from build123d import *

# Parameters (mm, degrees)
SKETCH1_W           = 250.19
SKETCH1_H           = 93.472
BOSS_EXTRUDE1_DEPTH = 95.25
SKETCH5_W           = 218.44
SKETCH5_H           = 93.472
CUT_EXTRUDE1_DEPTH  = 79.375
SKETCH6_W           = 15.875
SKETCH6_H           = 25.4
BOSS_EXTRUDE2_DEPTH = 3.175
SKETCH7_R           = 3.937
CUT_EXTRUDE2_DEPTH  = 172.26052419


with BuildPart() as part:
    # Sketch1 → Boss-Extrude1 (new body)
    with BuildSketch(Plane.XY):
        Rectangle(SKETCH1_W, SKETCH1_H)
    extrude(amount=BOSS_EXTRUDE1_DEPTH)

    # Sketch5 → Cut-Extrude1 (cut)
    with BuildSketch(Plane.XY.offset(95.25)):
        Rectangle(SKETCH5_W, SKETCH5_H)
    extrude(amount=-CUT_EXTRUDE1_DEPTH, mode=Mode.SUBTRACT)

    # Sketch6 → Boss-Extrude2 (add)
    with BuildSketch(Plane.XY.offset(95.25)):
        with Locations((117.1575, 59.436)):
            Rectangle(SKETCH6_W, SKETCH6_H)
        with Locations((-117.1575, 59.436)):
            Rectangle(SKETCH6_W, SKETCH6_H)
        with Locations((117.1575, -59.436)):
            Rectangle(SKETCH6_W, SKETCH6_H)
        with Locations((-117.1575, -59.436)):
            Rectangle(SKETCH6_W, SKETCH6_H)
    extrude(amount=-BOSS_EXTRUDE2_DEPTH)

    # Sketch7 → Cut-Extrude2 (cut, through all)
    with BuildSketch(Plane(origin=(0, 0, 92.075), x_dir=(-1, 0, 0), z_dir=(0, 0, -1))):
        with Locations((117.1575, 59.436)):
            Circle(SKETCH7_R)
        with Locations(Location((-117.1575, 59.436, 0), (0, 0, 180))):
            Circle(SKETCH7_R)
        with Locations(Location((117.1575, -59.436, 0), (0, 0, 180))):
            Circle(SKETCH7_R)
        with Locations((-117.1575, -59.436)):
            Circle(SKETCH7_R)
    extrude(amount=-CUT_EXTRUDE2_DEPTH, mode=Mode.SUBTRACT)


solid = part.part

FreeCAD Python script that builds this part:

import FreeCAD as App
import Part
import Sketcher

V = App.Vector
Q = App.Units.Quantity

doc = App.newDocument("Part")
body = doc.addObject("PartDesign::Body", "Body")

sketch1 = body.newObject("Sketcher::SketchObject", "Sketch")
sketch1.AttachmentSupport = (doc.getObject("XY_Plane"), [""])
sketch1.MapMode = "FlatFace"
sketch1.addGeometry(Part.LineSegment(V(-125, 47, 0), V(-125, -47, 0)), False)
sketch1.addGeometry(Part.LineSegment(V(-125, -47, 0), V(125, -47, 0)), False)
sketch1.addGeometry(Part.LineSegment(V(125, -47, 0), V(125, 47, 0)), False)
sketch1.addGeometry(Part.LineSegment(V(125, 47, 0), V(-125, 47, 0)), False)
sketch1.addConstraint(Sketcher.Constraint("Coincident", 0, 2, 1, 1))
sketch1.addConstraint(Sketcher.Constraint("Coincident", 1, 2, 2, 1))
sketch1.addConstraint(Sketcher.Constraint("Coincident", 2, 2, 3, 1))
sketch1.addConstraint(Sketcher.Constraint("Coincident", 3, 2, 0, 1))
sketch1.addConstraint(Sketcher.Constraint("Vertical", 0))
sketch1.addConstraint(Sketcher.Constraint("Horizontal", 1))
sketch1.addConstraint(Sketcher.Constraint("Vertical", 2))
sketch1.addConstraint(Sketcher.Constraint("Horizontal", 3))
sketch1.addConstraint(Sketcher.Constraint("Symmetric", 0, 2, 2, 2, -1, 1))
sketch1.addConstraint(Sketcher.Constraint("DistanceX", 1, 1, 1, 2, Q("9.85 in")))
sketch1.addConstraint(Sketcher.Constraint("DistanceY", 0, 2, 0, 1, Q("3.68 in")))
pad1 = body.newObject("PartDesign::Pad", "Pad")
pad1.Profile = sketch1
pad1.Length = Q("3.75 in")

sketch2 = body.newObject("Sketcher::SketchObject", "Sketch001")
sketch2.AttachmentSupport = (doc.getObject("XY_Plane"), [""])
sketch2.MapMode = "FlatFace"
sketch2.AttachmentOffset = App.Placement(V(0, 0, 3.75 * 25.4), App.Rotation())
sketch2.addGeometry(Part.LineSegment(V(-109, 47, 0), V(-109, -47, 0)), False)
sketch2.addGeometry(Part.LineSegment(V(-109, -47, 0), V(109, -47, 0)), False)
sketch2.addGeometry(Part.LineSegment(V(109, -47, 0), V(109, 47, 0)), False)
sketch2.addGeometry(Part.LineSegment(V(109, 47, 0), V(-109, 47, 0)), False)
sketch2.addConstraint(Sketcher.Constraint("Coincident", 0, 2, 1, 1))
sketch2.addConstraint(Sketcher.Constraint("Coincident", 1, 2, 2, 1))
sketch2.addConstraint(Sketcher.Constraint("Coincident", 2, 2, 3, 1))
sketch2.addConstraint(Sketcher.Constraint("Coincident", 3, 2, 0, 1))
sketch2.addConstraint(Sketcher.Constraint("Vertical", 0))
sketch2.addConstraint(Sketcher.Constraint("Horizontal", 1))
sketch2.addConstraint(Sketcher.Constraint("Vertical", 2))
sketch2.addConstraint(Sketcher.Constraint("Horizontal", 3))
sketch2.addConstraint(Sketcher.Constraint("Symmetric", 0, 2, 2, 2, -1, 1))
sketch2.addConstraint(Sketcher.Constraint("DistanceX", 1, 1, 1, 2, Q("8.6 in")))
sketch2.addConstraint(Sketcher.Constraint("DistanceY", 0, 2, 0, 1, Q("3.68 in")))
pocket1 = body.newObject("PartDesign::Pocket", "Pocket")
pocket1.Profile = sketch2
pocket1.Length = Q("3.125 in")

sketch3 = body.newObject("Sketcher::SketchObject", "Sketch002")
sketch3.AttachmentSupport = (doc.getObject("XY_Plane"), [""])
sketch3.MapMode = "FlatFace"
sketch3.AttachmentOffset = App.Placement(V(0, 0, 3.75 * 25.4), App.Rotation())
sketch3.addGeometry(Part.LineSegment(V(109, 72, 0), V(109, 47, 0)), False)
sketch3.addGeometry(Part.LineSegment(V(109, 47, 0), V(125, 47, 0)), False)
sketch3.addGeometry(Part.LineSegment(V(125, 47, 0), V(125, 72, 0)), False)
sketch3.addGeometry(Part.LineSegment(V(125, 72, 0), V(109, 72, 0)), False)
sketch3.addGeometry(Part.LineSegment(V(-125, 72, 0), V(-125, 47, 0)), False)
sketch3.addGeometry(Part.LineSegment(V(-125, 47, 0), V(-109, 47, 0)), False)
sketch3.addGeometry(Part.LineSegment(V(-109, 47, 0), V(-109, 72, 0)), False)
sketch3.addGeometry(Part.LineSegment(V(-109, 72, 0), V(-125, 72, 0)), False)
sketch3.addGeometry(Part.LineSegment(V(109, -47, 0), V(109, -72, 0)), False)
sketch3.addGeometry(Part.LineSegment(V(109, -72, 0), V(125, -72, 0)), False)
sketch3.addGeometry(Part.LineSegment(V(125, -72, 0), V(125, -47, 0)), False)
sketch3.addGeometry(Part.LineSegment(V(125, -47, 0), V(109, -47, 0)), False)
sketch3.addGeometry(Part.LineSegment(V(-125, -47, 0), V(-125, -72, 0)), False)
sketch3.addGeometry(Part.LineSegment(V(-125, -72, 0), V(-109, -72, 0)), False)
sketch3.addGeometry(Part.LineSegment(V(-109, -72, 0), V(-109, -47, 0)), False)
sketch3.addGeometry(Part.LineSegment(V(-109, -47, 0), V(-125, -47, 0)), False)
sketch3.addConstraint(Sketcher.Constraint("Coincident", 0, 2, 1, 1))
sketch3.addConstraint(Sketcher.Constraint("Coincident", 1, 2, 2, 1))
sketch3.addConstraint(Sketcher.Constraint("Coincident", 2, 2, 3, 1))
sketch3.addConstraint(Sketcher.Constraint("Coincident", 3, 2, 0, 1))
sketch3.addConstraint(Sketcher.Constraint("Coincident", 4, 2, 5, 1))
sketch3.addConstraint(Sketcher.Constraint("Coincident", 5, 2, 6, 1))
sketch3.addConstraint(Sketcher.Constraint("Coincident", 6, 2, 7, 1))
sketch3.addConstraint(Sketcher.Constraint("Coincident", 7, 2, 4, 1))
sketch3.addConstraint(Sketcher.Constraint("Coincident", 8, 2, 9, 1))
sketch3.addConstraint(Sketcher.Constraint("Coincident", 9, 2, 10, 1))
sketch3.addConstraint(Sketcher.Constraint("Coincident", 10, 2, 11, 1))
sketch3.addConstraint(Sketcher.Constraint("Coincident", 11, 2, 8, 1))
sketch3.addConstraint(Sketcher.Constraint("Coincident", 12, 2, 13, 1))
sketch3.addConstraint(Sketcher.Constraint("Coincident", 13, 2, 14, 1))
sketch3.addConstraint(Sketcher.Constraint("Coincident", 14, 2, 15, 1))
sketch3.addConstraint(Sketcher.Constraint("Coincident", 15, 2, 12, 1))
sketch3.addConstraint(Sketcher.Constraint("Vertical", 0))
sketch3.addConstraint(Sketcher.Constraint("Horizontal", 1))
sketch3.addConstraint(Sketcher.Constraint("Vertical", 2))
sketch3.addConstraint(Sketcher.Constraint("Horizontal", 3))
sketch3.addConstraint(Sketcher.Constraint("Vertical", 4))
sketch3.addConstraint(Sketcher.Constraint("Horizontal", 5))
sketch3.addConstraint(Sketcher.Constraint("Vertical", 6))
sketch3.addConstraint(Sketcher.Constraint("Horizontal", 7))
sketch3.addConstraint(Sketcher.Constraint("Vertical", 8))
sketch3.addConstraint(Sketcher.Constraint("Horizontal", 9))
sketch3.addConstraint(Sketcher.Constraint("Vertical", 10))
sketch3.addConstraint(Sketcher.Constraint("Horizontal", 11))
sketch3.addConstraint(Sketcher.Constraint("Vertical", 12))
sketch3.addConstraint(Sketcher.Constraint("Horizontal", 13))
sketch3.addConstraint(Sketcher.Constraint("Vertical", 14))
sketch3.addConstraint(Sketcher.Constraint("Horizontal", 15))
sketch3.addConstraint(Sketcher.Constraint("Symmetric", 6, 2, 8, 2, -1, 1))
sketch3.addConstraint(Sketcher.Constraint("Symmetric", 4, 2, 10, 2, -1, 1))
sketch3.addConstraint(Sketcher.Constraint("Symmetric", 2, 2, 12, 2, -1, 1))
sketch3.addConstraint(Sketcher.Constraint("Symmetric", 0, 2, 14, 2, -1, 1))
sketch3.addConstraint(Sketcher.Constraint("Symmetric", 1, 2, 4, 2, -2))
sketch3.addConstraint(Sketcher.Constraint("Symmetric", 3, 2, 6, 2, -2))
sketch3.addConstraint(Sketcher.Constraint("DistanceY", 0, 2, 0, 1, Q("1 in")))
sketch3.addConstraint(Sketcher.Constraint("DistanceX", -1, 1, 0, 2, Q("4.3 in")))
sketch3.addConstraint(Sketcher.Constraint("DistanceX", 1, 1, 1, 2, Q("0.625 in")))
sketch3.addConstraint(Sketcher.Constraint("DistanceY", -1, 1, 0, 2, Q("1.84 in")))
pad2 = body.newObject("PartDesign::Pad", "Pad001")
pad2.Profile = sketch3
pad2.Length = Q("0.125 in")
pad2.Reversed = True

sketch4 = body.newObject("Sketcher::SketchObject", "Sketch003")
sketch4.AttachmentSupport = (doc.getObject("XY_Plane"), [""])
sketch4.MapMode = "FlatFace"
sketch4.AttachmentOffset = App.Placement(V(0, 0, 3.625 * 25.4), App.Rotation())
sketch4.addGeometry(Part.Circle(V(-117.2, 59.4, 0), V(0, 0, 1), 3.9), False)
sketch4.addGeometry(Part.Circle(V(117.2, 59.4, 0), V(0, 0, 1), 3.9), False)
sketch4.addGeometry(Part.Circle(V(-117.2, -59.4, 0), V(0, 0, 1), 3.9), False)
sketch4.addGeometry(Part.Circle(V(117.2, -59.4, 0), V(0, 0, 1), 3.9), False)
sketch4.addConstraint(Sketcher.Constraint("Equal", 0, 1))
sketch4.addConstraint(Sketcher.Constraint("Equal", 1, 2))
sketch4.addConstraint(Sketcher.Constraint("Equal", 2, 3))
sketch4.addConstraint(Sketcher.Constraint("Symmetric", 1, 3, 2, 3, -1, 1))
sketch4.addConstraint(Sketcher.Constraint("Symmetric", 0, 3, 3, 3, -1, 1))
sketch4.addConstraint(Sketcher.Constraint("Symmetric", 0, 3, 1, 3, -2))
sketch4.addConstraint(Sketcher.Constraint("Diameter", 0, Q("0.31 in")))
sketch4.addConstraint(Sketcher.Constraint("DistanceY", -1, 1, 0, 3, Q("2.34 in")))
sketch4.addConstraint(Sketcher.Constraint("DistanceX", 0, 3, 1, 3, Q("9.225 in")))
pocket2 = body.newObject("PartDesign::Pocket", "Pocket001")
pocket2.Profile = sketch4
pocket2.Type = "ThroughAll"
pocket2.Reversed = True

doc.recompute()
